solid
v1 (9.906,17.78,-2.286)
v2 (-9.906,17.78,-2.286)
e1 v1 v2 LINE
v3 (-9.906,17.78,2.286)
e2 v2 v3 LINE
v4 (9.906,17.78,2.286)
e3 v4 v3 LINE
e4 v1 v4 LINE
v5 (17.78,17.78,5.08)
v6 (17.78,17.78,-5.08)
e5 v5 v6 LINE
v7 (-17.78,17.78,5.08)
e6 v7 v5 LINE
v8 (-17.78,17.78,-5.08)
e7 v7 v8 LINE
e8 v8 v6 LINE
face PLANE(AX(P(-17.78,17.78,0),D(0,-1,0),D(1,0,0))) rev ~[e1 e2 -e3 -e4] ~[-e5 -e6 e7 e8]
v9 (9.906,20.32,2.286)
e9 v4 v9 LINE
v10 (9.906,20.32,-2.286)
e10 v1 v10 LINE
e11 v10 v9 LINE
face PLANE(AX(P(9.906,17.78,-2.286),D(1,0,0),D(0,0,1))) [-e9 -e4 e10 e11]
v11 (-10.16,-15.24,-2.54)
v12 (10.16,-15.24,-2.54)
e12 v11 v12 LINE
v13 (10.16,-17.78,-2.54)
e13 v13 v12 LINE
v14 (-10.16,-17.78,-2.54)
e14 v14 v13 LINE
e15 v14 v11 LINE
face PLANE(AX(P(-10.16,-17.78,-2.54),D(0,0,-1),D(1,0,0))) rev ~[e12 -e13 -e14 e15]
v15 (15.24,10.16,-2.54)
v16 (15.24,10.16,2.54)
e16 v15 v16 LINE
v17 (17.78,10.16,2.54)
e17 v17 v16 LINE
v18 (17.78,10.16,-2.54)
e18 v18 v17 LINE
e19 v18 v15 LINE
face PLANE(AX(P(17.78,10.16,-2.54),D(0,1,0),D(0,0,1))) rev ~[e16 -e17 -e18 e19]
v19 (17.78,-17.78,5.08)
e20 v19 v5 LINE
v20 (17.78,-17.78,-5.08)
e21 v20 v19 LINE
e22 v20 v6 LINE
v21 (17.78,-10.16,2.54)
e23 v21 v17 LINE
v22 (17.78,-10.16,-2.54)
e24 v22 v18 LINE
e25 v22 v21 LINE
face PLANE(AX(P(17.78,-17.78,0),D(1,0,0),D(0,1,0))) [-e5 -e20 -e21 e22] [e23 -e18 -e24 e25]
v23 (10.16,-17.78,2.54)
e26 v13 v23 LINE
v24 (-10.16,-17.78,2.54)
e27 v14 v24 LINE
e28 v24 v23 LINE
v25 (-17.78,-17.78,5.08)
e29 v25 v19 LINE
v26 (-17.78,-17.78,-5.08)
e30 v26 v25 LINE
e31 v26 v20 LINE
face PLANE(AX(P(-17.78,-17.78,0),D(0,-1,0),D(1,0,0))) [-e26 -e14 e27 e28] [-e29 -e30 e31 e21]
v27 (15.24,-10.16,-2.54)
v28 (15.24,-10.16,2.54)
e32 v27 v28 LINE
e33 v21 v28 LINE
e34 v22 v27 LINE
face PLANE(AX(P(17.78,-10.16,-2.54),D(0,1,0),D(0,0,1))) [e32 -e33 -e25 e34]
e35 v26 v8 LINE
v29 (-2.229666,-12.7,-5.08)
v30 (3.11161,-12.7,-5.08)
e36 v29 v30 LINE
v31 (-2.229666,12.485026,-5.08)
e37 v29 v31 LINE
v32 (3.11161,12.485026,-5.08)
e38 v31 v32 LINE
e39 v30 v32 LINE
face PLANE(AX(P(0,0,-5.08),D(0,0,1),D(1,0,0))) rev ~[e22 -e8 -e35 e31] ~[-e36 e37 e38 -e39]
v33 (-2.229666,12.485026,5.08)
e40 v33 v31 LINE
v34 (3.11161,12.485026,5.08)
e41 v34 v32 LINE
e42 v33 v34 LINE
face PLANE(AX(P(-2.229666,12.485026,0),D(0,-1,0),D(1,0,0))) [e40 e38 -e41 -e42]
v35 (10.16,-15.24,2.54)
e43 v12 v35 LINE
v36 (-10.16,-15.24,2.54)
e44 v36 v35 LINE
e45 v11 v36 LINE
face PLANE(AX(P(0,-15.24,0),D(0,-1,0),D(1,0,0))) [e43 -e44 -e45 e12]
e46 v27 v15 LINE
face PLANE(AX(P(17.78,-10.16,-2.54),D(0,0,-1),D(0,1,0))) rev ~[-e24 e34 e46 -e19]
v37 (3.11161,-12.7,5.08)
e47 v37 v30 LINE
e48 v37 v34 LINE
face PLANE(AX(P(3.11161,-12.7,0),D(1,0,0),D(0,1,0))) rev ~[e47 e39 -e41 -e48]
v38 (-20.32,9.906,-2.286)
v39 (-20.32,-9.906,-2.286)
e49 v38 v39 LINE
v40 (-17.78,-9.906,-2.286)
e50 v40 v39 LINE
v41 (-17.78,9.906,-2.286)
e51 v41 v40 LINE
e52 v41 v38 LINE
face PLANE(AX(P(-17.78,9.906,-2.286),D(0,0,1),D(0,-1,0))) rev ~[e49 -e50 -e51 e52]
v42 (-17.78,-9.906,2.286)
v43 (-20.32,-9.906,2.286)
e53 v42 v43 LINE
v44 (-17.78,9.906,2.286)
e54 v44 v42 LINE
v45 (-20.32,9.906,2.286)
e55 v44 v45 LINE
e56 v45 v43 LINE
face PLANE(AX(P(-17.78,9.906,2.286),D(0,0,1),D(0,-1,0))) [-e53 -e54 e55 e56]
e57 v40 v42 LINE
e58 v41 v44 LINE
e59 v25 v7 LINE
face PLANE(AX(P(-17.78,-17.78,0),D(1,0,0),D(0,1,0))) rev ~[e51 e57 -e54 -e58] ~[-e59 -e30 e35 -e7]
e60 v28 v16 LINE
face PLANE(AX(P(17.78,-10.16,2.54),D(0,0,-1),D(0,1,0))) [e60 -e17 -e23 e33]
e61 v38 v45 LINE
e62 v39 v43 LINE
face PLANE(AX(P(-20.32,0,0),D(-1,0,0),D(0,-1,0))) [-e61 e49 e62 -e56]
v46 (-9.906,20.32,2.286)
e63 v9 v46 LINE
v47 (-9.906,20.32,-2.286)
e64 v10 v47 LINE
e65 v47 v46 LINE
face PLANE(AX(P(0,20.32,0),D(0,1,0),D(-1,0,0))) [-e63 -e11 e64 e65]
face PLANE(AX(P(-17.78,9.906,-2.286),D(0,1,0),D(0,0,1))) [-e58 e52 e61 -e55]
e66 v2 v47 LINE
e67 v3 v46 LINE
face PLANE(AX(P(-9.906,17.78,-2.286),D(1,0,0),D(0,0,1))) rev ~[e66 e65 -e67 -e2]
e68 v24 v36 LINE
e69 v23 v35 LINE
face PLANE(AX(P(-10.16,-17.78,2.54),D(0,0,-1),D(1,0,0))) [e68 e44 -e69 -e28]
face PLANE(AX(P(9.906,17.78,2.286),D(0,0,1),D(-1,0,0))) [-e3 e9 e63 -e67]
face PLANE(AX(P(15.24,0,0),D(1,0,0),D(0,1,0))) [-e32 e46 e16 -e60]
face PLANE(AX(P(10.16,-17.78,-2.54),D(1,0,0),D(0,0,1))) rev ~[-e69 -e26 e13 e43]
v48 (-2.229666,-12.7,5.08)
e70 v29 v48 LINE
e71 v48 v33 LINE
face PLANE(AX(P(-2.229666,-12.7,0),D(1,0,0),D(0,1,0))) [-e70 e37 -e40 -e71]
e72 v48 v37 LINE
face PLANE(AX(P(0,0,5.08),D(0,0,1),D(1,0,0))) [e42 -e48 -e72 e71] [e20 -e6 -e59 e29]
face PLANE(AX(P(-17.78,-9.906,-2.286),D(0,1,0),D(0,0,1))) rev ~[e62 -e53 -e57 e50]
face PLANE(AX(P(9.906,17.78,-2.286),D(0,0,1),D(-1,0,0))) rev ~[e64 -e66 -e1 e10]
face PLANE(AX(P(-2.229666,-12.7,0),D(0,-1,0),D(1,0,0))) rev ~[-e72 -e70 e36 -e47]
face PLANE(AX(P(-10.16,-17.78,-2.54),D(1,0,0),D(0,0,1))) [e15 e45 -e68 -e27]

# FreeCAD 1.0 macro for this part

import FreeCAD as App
import Part
import Sketcher
Q = App.Units.Quantity

doc = App.newDocument("Part")
body = doc.addObject("PartDesign::Body", "Body")

# Sketch on XY plane
sketch1 = doc.addObject("Sketcher::SketchObject", "Sketch")
body.addObject(sketch1)
sketch1.AttachmentSupport = (doc.XY_Plane, [""])
sketch1.MapMode = "FlatFace"
sketch1.addGeometry([
    Part.LineSegment(App.Vector(-17.78, 17.78, 0), App.Vector(-17.78, -17.78, 0)),  # 0
    Part.LineSegment(App.Vector(-17.78, -17.78, 0), App.Vector(17.78, -17.78, 0)),  # 1
    Part.LineSegment(App.Vector(17.78, -17.78, 0), App.Vector(17.78, 17.78, 0)),  # 2
    Part.LineSegment(App.Vector(17.78, 17.78, 0), App.Vector(-17.78, 17.78, 0)),  # 3
    Part.LineSegment(App.Vector(3.11161, -12.7, 0), App.Vector(-2.229666, -12.7, 0)),  # 4
    Part.LineSegment(App.Vector(-2.229666, -12.7, 0), App.Vector(-2.229666, 12.485026, 0)),  # 5
    Part.LineSegment(App.Vector(-2.229666, 12.485026, 0), App.Vector(3.11161, 12.485026, 0)),  # 6
    Part.LineSegment(App.Vector(3.11161, 12.485026, 0), App.Vector(3.11161, -12.7, 0)),  # 7
], False)
sketch1.addConstraint([
    Sketcher.Constraint("Coincident", 0, 2, 1, 1),
    Sketcher.Constraint("Coincident", 1, 2, 2, 1),
    Sketcher.Constraint("Coincident", 2, 2, 3, 1),
    Sketcher.Constraint("Coincident", 3, 2, 0, 1),
    Sketcher.Constraint("Coincident", 4, 2, 5, 1),
    Sketcher.Constraint("Coincident", 5, 2, 6, 1),
    Sketcher.Constraint("Coincident", 6, 2, 7, 1),
    Sketcher.Constraint("Coincident", 7, 2, 4, 1),
    Sketcher.Constraint("Vertical", 0),
    Sketcher.Constraint("Horizontal", 1),
    Sketcher.Constraint("Vertical", 2),
    Sketcher.Constraint("Horizontal", 3),
    Sketcher.Constraint("Horizontal", 4),
    Sketcher.Constraint("Vertical", 5),
    Sketcher.Constraint("Horizontal", 6),
    Sketcher.Constraint("Vertical", 7),
    Sketcher.Constraint("Symmetric", 0, 2, 2, 2, -1, 1),
    Sketcher.Constraint("Equal", 3, 0),
    Sketcher.Constraint("DistanceX", 1, 1, 1, 2, Q("1.4 in")),
    Sketcher.Constraint("DistanceY", 4, 2, -1, 1, Q("0.5 in")),
    Sketcher.Constraint("DistanceX", 4, 2, 4, 1, Q("5.341276 mm")),
    Sketcher.Constraint("DistanceY", 5, 1, 5, 2, Q("25.185026 mm")),
    Sketcher.Constraint("DistanceX", -1, 1, 6, 2, Q("3.11161 mm")),
])
pad1 = doc.addObject("PartDesign::Pad", "Pad")
body.addObject(pad1)
pad1.Profile = sketch1
pad1.Length = Q("0.4 in")
pad1.Midplane = True

# Sketch on XZ plane
sketch2 = doc.addObject("Sketcher::SketchObject", "Sketch001")
body.addObject(sketch2)
sketch2.AttachmentSupport = (doc.XZ_Plane, [""])
sketch2.MapMode = "FlatFace"
sketch2.AttachmentOffset = App.Placement(App.Vector(0, 0, -0.7 * 25.4), App.Rotation())
sketch2.addGeometry([
    Part.LineSegment(App.Vector(9.906, 2.286, 0), App.Vector(9.906, -2.286, 0)),
    Part.LineSegment(App.Vector(9.906, -2.286, 0), App.Vector(-9.906, -2.286, 0)),
    Part.LineSegment(App.Vector(-9.906, -2.286, 0), App.Vector(-9.906, 2.286, 0)),
    Part.LineSegment(App.Vector(-9.906, 2.286, 0), App.Vector(9.906, 2.286, 0)),
], False)
sketch2.addConstraint([
    Sketcher.Constraint("Coincident", 0, 2, 1, 1),
    Sketcher.Constraint("Coincident", 1, 2, 2, 1),
    Sketcher.Constraint("Coincident", 2, 2, 3, 1),
    Sketcher.Constraint("Coincident", 3, 2, 0, 1),
    Sketcher.Constraint("Vertical", 0),
    Sketcher.Constraint("Horizontal", 1),
    Sketcher.Constraint("Vertical", 2),
    Sketcher.Constraint("Horizontal", 3),
    Sketcher.Constraint("Symmetric", 0, 2, 2, 2, -1, 1),
    Sketcher.Constraint("DistanceX", 1, 2, 1, 1, Q("0.78 in")),
    Sketcher.Constraint("DistanceY", 0, 2, 0, 1, Q("0.18 in")),
])
pad2 = doc.addObject("PartDesign::Pad", "Pad001")
body.addObject(pad2)
pad2.Profile = sketch2
pad2.Length = Q("0.1 in")
pad2.Reversed = True

# Sketch on YZ plane
sketch3 = doc.addObject("Sketcher::SketchObject", "Sketch002")
body.addObject(sketch3)
sketch3.AttachmentSupport = (doc.YZ_Plane, [""])
sketch3.MapMode = "FlatFace"
sketch3.AttachmentOffset = App.Placement(App.Vector(0, 0, -0.7 * 25.4), App.Rotation())
sketch3.addGeometry([
    Part.LineSegment(App.Vector(9.906, 2.286, 0), App.Vector(9.906, -2.286, 0)),
    Part.LineSegment(App.Vector(9.906, -2.286, 0), App.Vector(-9.906, -2.286, 0)),
    Part.LineSegment(App.Vector(-9.906, -2.286, 0), App.Vector(-9.906, 2.286, 0)),
    Part.LineSegment(App.Vector(-9.906, 2.286, 0), App.Vector(9.906, 2.286, 0)),
], False)
sketch3.addConstraint([
    Sketcher.Constraint("Coincident", 0, 2, 1, 1),
    Sketcher.Constraint("Coincident", 1, 2, 2, 1),
    Sketcher.Constraint("Coincident", 2, 2, 3, 1),
    Sketcher.Constraint("Coincident", 3, 2, 0, 1),
    Sketcher.Constraint("Vertical", 0),
    Sketcher.Constraint("Horizontal", 1),
    Sketcher.Constraint("Vertical", 2),
    Sketcher.Constraint("Horizontal", 3),
    Sketcher.Constraint("Symmetric", 0, 2, 2, 2, -1, 1),
    Sketcher.Constraint("DistanceX", 1, 2, 1, 1, Q("0.78 in")),
    Sketcher.Constraint("DistanceY", 0, 2, 0, 1, Q("0.18 in")),
])
pad3 = doc.addObject("PartDesign::Pad", "Pad002")
body.addObject(pad3)
pad3.Profile = sketch3
pad3.Length = Q("0.1 in")
pad3.Reversed = True

# Sketch on XZ plane
sketch4 = doc.addObject("Sketcher::SketchObject", "Sketch003")
body.addObject(sketch4)
sketch4.AttachmentSupport = (doc.XZ_Plane, [""])
sketch4.MapMode = "FlatFace"
sketch4.AttachmentOffset = App.Placement(App.Vector(0, 0, 0.7 * 25.4), App.Rotation())
sketch4.addGeometry([
    Part.LineSegment(App.Vector(-10.16, 2.54, 0), App.Vector(-10.16, -2.54, 0)),
    Part.LineSegment(App.Vector(-10.16, -2.54, 0), App.Vector(10.16, -2.54, 0)),
    Part.LineSegment(App.Vector(10.16, -2.54, 0), App.Vector(10.16, 2.54, 0)),
    Part.LineSegment(App.Vector(10.16, 2.54, 0), App.Vector(-10.16, 2.54, 0)),
], False)
sketch4.addConstraint([
    Sketcher.Constraint("Coincident", 0, 2, 1, 1),
    Sketcher.Constraint("Coincident", 1, 2, 2, 1),
    Sketcher.Constraint("Coincident", 2, 2, 3, 1),
    Sketcher.Constraint("Coincident", 3, 2, 0, 1),
    Sketcher.Constraint("Vertical", 0),
    Sketcher.Constraint("Horizontal", 1),
    Sketcher.Constraint("Vertical", 2),
    Sketcher.Constraint("Horizontal", 3),
    Sketcher.Constraint("Symmetric", 0, 2, 2, 2, -1, 1),
    Sketcher.Constraint("DistanceX", 1, 1, 1, 2, Q("0.8 in")),
    Sketcher.Constraint("DistanceY", 0, 2, 0, 1, Q("0.2 in")),
])
pocket1 = doc.addObject("PartDesign::Pocket", "Pocket")
body.addObject(pocket1)
pocket1.Profile = sketch4
pocket1.Length = Q("0.1 in")

# Sketch on YZ plane
sketch5 = doc.addObject("Sketcher::SketchObject", "Sketch004")
body.addObject(sketch5)
sketch5.AttachmentSupport = (doc.YZ_Plane, [""])
sketch5.MapMode = "FlatFace"
sketch5.AttachmentOffset = App.Placement(App.Vector(0, 0, 0.7 * 25.4), App.Rotation())
sketch5.addGeometry([
    Part.LineSegment(App.Vector(-10.16, 2.54, 0), App.Vector(-10.16, -2.54, 0)),
    Part.LineSegment(App.Vector(-10.16, -2.54, 0), App.Vector(10.16, -2.54, 0)),
    Part.LineSegment(App.Vector(10.16, -2.54, 0), App.Vector(10.16, 2.54, 0)),
    Part.LineSegment(App.Vector(10.16, 2.54, 0), App.Vector(-10.16, 2.54, 0)),
], False)
sketch5.addConstraint([
    Sketcher.Constraint("Coincident", 0, 2, 1, 1),
    Sketcher.Constraint("Coincident", 1, 2, 2, 1),
    Sketcher.Constraint("Coincident", 2, 2, 3, 1),
    Sketcher.Constraint("Coincident", 3, 2, 0, 1),
    Sketcher.Constraint("Vertical", 0),
    Sketcher.Constraint("Horizontal", 1),
    Sketcher.Constraint("Vertical", 2),
    Sketcher.Constraint("Horizontal", 3),
    Sketcher.Constraint("Symmetric", 0, 2, 2, 2, -1, 1),
    Sketcher.Constraint("DistanceX", 1, 1, 1, 2, Q("0.8 in")),
    Sketcher.Constraint("DistanceY", 0, 2, 0, 1, Q("0.2 in")),
])
pocket2 = doc.addObject("PartDesign::Pocket", "Pocket001")
body.addObject(pocket2)
pocket2.Profile = sketch5
pocket2.Length = Q("0.1 in")

doc.recompute()
